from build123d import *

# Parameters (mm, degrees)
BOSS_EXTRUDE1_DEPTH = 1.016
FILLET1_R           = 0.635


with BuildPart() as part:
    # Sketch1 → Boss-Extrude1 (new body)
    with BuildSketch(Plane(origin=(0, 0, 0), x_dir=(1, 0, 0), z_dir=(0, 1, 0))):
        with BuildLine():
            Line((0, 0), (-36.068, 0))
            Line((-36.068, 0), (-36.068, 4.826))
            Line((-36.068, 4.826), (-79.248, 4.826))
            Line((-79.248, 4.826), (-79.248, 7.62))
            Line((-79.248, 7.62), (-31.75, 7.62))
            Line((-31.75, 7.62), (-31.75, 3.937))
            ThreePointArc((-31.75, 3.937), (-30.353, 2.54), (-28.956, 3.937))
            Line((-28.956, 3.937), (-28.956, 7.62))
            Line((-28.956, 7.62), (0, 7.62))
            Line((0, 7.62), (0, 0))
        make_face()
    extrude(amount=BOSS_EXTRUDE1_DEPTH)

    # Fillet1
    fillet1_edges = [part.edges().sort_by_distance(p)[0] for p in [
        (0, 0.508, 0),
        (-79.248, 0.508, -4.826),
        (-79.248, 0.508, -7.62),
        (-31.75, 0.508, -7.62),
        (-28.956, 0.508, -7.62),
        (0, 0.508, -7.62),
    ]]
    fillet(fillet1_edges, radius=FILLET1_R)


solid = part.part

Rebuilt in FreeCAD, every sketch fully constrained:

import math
import FreeCAD as App
import Part
import Sketcher
from FreeCAD import Vector
Q = App.Units.Quantity


def edges_at(feature, points):
    """Names of the edges that pass closest to the given points."""
    edges = feature.Shape.Edges
    near = lambda p: min(range(len(edges)), key=lambda i: edges[i].distToShape(Part.Vertex(*p))[0])
    return sorted({f"Edge{near(p) + 1}" for p in points})

doc = App.newDocument("Part")
body = doc.addObject("PartDesign::Body", "Body")

# Sketch on XZ plane
sketch1 = doc.addObject("Sketcher::SketchObject", "Sketch")
body.addObject(sketch1)
sketch1.AttachmentSupport = (doc.XZ_Plane, [""])
sketch1.MapMode = "FlatFace"
sketch1.addGeometry(Part.LineSegment(Vector(-36.1, 0, 0), Vector(0, 0, 0)), False)
sketch1.addGeometry(Part.LineSegment(Vector(0, 0, 0), Vector(0, -7.6, 0)), False)
sketch1.addGeometry(Part.LineSegment(Vector(0, -7.6, 0), Vector(-29, -7.6, 0)), False)
sketch1.addGeometry(Part.LineSegment(Vector(-29, -7.6, 0), Vector(-29, -3.9, 0)), False)
sketch1.addGeometry(Part.ArcOfCircle(Part.Circle(Vector(-30.4, -3.9, 0), Vector(0, 0, 1), 1.4), math.radians(0), math.radians(180)), False)
sketch1.addGeometry(Part.LineSegment(Vector(-31.8, -3.9, 0), Vector(-31.8, -7.6, 0)), False)
sketch1.addGeometry(Part.LineSegment(Vector(-31.8, -7.6, 0), Vector(-79.2, -7.6, 0)), False)
sketch1.addGeometry(Part.LineSegment(Vector(-79.2, -7.6, 0), Vector(-79.2, -4.8, 0)), False)
sketch1.addGeometry(Part.LineSegment(Vector(-79.2, -4.8, 0), Vector(-36.1, -4.8, 0)), False)
sketch1.addGeometry(Part.LineSegment(Vector(-36.1, -4.8, 0), Vector(-36.1, 0, 0)), False)
sketch1.addConstraint(Sketcher.Constraint("Coincident", 0, 2, 1, 1))
sketch1.addConstraint(Sketcher.Constraint("Coincident", 1, 2, 2, 1))
sketch1.addConstraint(Sketcher.Constraint("Coincident", 2, 2, 3, 1))
sketch1.addConstraint(Sketcher.Constraint("Tangent", 3, 2, 4, 1))
sketch1.addConstraint(Sketcher.Constraint("Tangent", 4, 2, 5, 1))
sketch1.addConstraint(Sketcher.Constraint("Coincident", 5, 2, 6, 1))
sketch1.addConstraint(Sketcher.Constraint("Coincident", 6, 2, 7, 1))
sketch1.addConstraint(Sketcher.Constraint("Coincident", 7, 2, 8, 1))
sketch1.addConstraint(Sketcher.Constraint("Coincident", 8, 2, 9, 1))
sketch1.addConstraint(Sketcher.Constraint("Coincident", 9, 2, 0, 1))
sketch1.addConstraint(Sketcher.Constraint("Horizontal", 0))
sketch1.addConstraint(Sketcher.Constraint("Vertical", 1))
sketch1.addConstraint(Sketcher.Constraint("Horizontal", 2))
sketch1.addConstraint(Sketcher.Constraint("Vertical", 3))
sketch1.addConstraint(Sketcher.Constraint("Vertical", 5))
sketch1.addConstraint(Sketcher.Constraint("Horizontal", 6))
sketch1.addConstraint(Sketcher.Constraint("Vertical", 7))
sketch1.addConstraint(Sketcher.Constraint("Horizontal", 8))
sketch1.addConstraint(Sketcher.Constraint("Vertical", 9))
sketch1.addConstraint(Sketcher.Constraint("Coincident", 0, 2, -1, 1))
sketch1.addConstraint(Sketcher.Constraint("Horizontal", 2, 2, 5, 2))
sketch1.addConstraint(Sketcher.Constraint("DistanceX", 8, 1, 8, 2, Q("1.7 in")))
sketch1.addConstraint(Sketcher.Constraint("DistanceY", 1, 2, 1, 1, Q("0.3 in")))
sketch1.addConstraint(Sketcher.Constraint("Radius", 4, Q("0.055 in")))
sketch1.addConstraint(Sketcher.Constraint("DistanceX", 0, 1, 0, 2, Q("1.42 in")))
sketch1.addConstraint(Sketcher.Constraint("DistanceX", 2, 2, 2, 1, Q("1.14 in")))
sketch1.addConstraint(Sketcher.Constraint("DistanceY", 7, 1, 7, 2, Q("0.11 in")))
sketch1.addConstraint(Sketcher.Constraint("DistanceY", 3, 1, 3, 2, Q("0.145 in")))
pad1 = doc.addObject("PartDesign::Pad", "Pad")
body.addObject(pad1)
pad1.Profile = sketch1
pad1.Length = Q("0.04 in")
pad1.Reversed = True
doc.recompute()

fillet = doc.addObject("PartDesign::Fillet", "Fillet")
body.addObject(fillet)
fillet.Base = (pad1, edges_at(pad1, [
    (0, 0.508, 0),
    (-79.248, 0.508, -4.826),
    (-79.248, 0.508, -7.62),
    (-31.75, 0.508, -7.62),
    (-28.956, 0.508, -7.62),
    (0, 0.508, -7.62),
]))
fillet.Radius = Q("0.025 in")

doc.recompute()
